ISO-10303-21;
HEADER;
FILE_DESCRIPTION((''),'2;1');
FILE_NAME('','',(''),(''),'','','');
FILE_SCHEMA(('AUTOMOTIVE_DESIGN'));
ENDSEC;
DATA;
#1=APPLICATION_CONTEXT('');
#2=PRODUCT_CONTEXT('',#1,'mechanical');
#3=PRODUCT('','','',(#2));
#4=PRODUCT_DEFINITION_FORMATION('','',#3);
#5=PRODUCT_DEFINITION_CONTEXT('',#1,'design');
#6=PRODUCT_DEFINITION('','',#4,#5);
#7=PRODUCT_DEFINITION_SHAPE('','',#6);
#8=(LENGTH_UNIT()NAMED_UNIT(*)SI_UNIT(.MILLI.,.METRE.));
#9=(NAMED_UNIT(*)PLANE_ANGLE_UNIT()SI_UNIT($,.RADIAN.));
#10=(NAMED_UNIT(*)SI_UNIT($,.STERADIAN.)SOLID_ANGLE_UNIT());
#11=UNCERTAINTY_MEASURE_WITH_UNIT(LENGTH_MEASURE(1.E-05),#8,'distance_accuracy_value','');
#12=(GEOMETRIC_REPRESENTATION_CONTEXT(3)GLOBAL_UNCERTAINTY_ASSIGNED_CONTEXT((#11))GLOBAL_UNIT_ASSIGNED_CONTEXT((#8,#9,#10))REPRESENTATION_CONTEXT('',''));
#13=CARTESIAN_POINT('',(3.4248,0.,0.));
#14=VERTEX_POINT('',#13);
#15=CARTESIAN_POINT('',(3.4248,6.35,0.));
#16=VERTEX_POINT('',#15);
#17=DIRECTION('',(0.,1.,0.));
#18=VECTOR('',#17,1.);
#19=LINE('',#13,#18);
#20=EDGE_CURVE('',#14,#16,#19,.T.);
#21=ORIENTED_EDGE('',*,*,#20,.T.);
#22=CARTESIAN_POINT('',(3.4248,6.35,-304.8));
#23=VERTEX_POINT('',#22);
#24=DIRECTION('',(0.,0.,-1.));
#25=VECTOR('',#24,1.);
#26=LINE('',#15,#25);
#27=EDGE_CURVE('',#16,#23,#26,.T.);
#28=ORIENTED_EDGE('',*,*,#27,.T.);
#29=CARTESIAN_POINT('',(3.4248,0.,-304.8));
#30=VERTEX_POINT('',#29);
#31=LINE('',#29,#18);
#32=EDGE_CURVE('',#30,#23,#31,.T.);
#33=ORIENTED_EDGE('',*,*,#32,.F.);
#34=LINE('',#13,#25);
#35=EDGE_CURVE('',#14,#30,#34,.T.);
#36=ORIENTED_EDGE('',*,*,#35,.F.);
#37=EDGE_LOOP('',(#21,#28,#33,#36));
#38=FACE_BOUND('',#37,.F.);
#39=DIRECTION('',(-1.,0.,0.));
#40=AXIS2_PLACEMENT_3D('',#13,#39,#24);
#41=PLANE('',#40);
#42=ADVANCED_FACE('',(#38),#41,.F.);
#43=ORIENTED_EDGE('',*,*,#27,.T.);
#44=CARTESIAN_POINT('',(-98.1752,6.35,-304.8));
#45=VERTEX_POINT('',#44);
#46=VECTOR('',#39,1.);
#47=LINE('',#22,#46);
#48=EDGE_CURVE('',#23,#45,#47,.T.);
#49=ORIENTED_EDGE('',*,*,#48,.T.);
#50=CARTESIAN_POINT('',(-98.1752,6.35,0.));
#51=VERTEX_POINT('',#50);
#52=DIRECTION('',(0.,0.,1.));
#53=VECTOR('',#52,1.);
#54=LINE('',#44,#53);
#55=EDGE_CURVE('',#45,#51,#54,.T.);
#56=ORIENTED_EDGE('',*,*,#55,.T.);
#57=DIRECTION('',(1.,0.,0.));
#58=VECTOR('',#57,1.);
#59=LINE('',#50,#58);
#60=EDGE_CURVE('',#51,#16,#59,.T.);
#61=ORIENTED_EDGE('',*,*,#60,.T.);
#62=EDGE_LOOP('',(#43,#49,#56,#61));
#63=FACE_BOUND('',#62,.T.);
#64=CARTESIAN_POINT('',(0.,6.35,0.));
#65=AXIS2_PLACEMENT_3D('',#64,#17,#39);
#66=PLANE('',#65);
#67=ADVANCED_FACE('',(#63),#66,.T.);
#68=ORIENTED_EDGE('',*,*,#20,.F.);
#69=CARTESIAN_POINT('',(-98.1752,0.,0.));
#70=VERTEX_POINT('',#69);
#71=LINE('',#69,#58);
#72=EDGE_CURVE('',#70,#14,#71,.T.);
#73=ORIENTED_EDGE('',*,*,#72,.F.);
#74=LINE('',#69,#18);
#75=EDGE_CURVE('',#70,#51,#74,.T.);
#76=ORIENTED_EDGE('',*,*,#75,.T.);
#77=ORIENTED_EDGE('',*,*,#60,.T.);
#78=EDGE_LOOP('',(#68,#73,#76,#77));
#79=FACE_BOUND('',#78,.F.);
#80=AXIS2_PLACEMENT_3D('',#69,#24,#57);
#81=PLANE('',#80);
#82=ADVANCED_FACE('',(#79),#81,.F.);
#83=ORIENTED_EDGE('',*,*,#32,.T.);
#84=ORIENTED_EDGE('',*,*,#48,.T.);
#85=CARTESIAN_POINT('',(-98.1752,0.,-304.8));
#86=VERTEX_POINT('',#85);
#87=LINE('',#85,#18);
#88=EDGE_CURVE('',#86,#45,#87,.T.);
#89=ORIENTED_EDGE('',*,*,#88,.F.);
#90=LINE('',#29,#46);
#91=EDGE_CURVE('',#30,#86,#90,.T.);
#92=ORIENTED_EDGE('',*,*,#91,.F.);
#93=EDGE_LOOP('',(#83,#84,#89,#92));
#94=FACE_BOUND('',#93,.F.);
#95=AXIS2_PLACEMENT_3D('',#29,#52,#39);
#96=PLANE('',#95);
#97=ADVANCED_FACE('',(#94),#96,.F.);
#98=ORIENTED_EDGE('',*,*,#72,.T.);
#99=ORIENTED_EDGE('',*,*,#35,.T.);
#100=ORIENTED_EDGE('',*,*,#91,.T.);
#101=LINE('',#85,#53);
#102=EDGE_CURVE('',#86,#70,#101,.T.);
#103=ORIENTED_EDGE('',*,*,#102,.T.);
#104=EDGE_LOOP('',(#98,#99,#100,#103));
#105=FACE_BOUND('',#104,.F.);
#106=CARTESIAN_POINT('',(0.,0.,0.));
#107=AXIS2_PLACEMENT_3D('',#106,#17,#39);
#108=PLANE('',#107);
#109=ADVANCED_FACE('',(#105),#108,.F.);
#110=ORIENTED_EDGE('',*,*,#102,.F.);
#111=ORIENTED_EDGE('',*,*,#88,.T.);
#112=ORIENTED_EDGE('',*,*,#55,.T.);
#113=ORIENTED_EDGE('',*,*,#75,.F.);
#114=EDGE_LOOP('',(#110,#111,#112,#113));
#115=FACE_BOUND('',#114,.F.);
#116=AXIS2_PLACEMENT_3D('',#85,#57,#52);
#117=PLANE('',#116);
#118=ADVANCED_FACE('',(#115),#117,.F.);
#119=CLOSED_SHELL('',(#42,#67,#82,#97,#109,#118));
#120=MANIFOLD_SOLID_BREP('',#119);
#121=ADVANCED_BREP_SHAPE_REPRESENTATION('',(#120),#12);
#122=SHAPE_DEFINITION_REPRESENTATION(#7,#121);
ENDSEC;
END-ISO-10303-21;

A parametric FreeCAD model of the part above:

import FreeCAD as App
import Part
import Sketcher

V = App.Vector
Q = App.Units.Quantity


def add_polygon(sketch, points):
    """Adds a closed chain of lines whose ends are joined by coincident constraints."""
    first, n = sketch.GeometryCount, len(points)
    for a, b in zip(points, points[1:] + points[:1]):
        sketch.addGeometry(Part.LineSegment(App.Vector(*a, 0), App.Vector(*b, 0)), False)
    for i in range(n):
        sketch.addConstraint(Sketcher.Constraint("Coincident", first + i, 2, first + (i + 1) % n, 1))

doc = App.newDocument("Part")
body = doc.addObject("PartDesign::Body", "Body")

# Sketch on XZ plane
sketch1 = body.newObject("Sketcher::SketchObject", "Sketch")
sketch1.AttachmentSupport = (doc.getObject("XZ_Plane"), [""])
sketch1.MapMode = "FlatFace"
add_polygon(sketch1, [(-98.1752, 0), (3.4248, 0), (3.4248, -304.8), (-98.1752, -304.8)])  # lines 0-3
sketch1.addConstraint(Sketcher.Constraint("Horizontal", 0))
sketch1.addConstraint(Sketcher.Constraint("Vertical", 1))
sketch1.addConstraint(Sketcher.Constraint("Horizontal", 2))
sketch1.addConstraint(Sketcher.Constraint("Vertical", 3))
sketch1.addConstraint(Sketcher.Constraint("PointOnObject", 0, 2, -1))
sketch1.addConstraint(Sketcher.Constraint("DistanceX", 0, 1, 0, 2, Q("4 in")))
sketch1.addConstraint(Sketcher.Constraint("DistanceY", 1, 2, 1, 1, Q("12 in")))
sketch1.addConstraint(Sketcher.Constraint("DistanceX", -1, 1, 0, 2, Q("3.4248 mm")))
pad1 = body.newObject("PartDesign::Pad", "Pad")
pad1.Profile = sketch1
pad1.Length = Q("0.25 in")
pad1.Reversed = True

doc.recompute()
